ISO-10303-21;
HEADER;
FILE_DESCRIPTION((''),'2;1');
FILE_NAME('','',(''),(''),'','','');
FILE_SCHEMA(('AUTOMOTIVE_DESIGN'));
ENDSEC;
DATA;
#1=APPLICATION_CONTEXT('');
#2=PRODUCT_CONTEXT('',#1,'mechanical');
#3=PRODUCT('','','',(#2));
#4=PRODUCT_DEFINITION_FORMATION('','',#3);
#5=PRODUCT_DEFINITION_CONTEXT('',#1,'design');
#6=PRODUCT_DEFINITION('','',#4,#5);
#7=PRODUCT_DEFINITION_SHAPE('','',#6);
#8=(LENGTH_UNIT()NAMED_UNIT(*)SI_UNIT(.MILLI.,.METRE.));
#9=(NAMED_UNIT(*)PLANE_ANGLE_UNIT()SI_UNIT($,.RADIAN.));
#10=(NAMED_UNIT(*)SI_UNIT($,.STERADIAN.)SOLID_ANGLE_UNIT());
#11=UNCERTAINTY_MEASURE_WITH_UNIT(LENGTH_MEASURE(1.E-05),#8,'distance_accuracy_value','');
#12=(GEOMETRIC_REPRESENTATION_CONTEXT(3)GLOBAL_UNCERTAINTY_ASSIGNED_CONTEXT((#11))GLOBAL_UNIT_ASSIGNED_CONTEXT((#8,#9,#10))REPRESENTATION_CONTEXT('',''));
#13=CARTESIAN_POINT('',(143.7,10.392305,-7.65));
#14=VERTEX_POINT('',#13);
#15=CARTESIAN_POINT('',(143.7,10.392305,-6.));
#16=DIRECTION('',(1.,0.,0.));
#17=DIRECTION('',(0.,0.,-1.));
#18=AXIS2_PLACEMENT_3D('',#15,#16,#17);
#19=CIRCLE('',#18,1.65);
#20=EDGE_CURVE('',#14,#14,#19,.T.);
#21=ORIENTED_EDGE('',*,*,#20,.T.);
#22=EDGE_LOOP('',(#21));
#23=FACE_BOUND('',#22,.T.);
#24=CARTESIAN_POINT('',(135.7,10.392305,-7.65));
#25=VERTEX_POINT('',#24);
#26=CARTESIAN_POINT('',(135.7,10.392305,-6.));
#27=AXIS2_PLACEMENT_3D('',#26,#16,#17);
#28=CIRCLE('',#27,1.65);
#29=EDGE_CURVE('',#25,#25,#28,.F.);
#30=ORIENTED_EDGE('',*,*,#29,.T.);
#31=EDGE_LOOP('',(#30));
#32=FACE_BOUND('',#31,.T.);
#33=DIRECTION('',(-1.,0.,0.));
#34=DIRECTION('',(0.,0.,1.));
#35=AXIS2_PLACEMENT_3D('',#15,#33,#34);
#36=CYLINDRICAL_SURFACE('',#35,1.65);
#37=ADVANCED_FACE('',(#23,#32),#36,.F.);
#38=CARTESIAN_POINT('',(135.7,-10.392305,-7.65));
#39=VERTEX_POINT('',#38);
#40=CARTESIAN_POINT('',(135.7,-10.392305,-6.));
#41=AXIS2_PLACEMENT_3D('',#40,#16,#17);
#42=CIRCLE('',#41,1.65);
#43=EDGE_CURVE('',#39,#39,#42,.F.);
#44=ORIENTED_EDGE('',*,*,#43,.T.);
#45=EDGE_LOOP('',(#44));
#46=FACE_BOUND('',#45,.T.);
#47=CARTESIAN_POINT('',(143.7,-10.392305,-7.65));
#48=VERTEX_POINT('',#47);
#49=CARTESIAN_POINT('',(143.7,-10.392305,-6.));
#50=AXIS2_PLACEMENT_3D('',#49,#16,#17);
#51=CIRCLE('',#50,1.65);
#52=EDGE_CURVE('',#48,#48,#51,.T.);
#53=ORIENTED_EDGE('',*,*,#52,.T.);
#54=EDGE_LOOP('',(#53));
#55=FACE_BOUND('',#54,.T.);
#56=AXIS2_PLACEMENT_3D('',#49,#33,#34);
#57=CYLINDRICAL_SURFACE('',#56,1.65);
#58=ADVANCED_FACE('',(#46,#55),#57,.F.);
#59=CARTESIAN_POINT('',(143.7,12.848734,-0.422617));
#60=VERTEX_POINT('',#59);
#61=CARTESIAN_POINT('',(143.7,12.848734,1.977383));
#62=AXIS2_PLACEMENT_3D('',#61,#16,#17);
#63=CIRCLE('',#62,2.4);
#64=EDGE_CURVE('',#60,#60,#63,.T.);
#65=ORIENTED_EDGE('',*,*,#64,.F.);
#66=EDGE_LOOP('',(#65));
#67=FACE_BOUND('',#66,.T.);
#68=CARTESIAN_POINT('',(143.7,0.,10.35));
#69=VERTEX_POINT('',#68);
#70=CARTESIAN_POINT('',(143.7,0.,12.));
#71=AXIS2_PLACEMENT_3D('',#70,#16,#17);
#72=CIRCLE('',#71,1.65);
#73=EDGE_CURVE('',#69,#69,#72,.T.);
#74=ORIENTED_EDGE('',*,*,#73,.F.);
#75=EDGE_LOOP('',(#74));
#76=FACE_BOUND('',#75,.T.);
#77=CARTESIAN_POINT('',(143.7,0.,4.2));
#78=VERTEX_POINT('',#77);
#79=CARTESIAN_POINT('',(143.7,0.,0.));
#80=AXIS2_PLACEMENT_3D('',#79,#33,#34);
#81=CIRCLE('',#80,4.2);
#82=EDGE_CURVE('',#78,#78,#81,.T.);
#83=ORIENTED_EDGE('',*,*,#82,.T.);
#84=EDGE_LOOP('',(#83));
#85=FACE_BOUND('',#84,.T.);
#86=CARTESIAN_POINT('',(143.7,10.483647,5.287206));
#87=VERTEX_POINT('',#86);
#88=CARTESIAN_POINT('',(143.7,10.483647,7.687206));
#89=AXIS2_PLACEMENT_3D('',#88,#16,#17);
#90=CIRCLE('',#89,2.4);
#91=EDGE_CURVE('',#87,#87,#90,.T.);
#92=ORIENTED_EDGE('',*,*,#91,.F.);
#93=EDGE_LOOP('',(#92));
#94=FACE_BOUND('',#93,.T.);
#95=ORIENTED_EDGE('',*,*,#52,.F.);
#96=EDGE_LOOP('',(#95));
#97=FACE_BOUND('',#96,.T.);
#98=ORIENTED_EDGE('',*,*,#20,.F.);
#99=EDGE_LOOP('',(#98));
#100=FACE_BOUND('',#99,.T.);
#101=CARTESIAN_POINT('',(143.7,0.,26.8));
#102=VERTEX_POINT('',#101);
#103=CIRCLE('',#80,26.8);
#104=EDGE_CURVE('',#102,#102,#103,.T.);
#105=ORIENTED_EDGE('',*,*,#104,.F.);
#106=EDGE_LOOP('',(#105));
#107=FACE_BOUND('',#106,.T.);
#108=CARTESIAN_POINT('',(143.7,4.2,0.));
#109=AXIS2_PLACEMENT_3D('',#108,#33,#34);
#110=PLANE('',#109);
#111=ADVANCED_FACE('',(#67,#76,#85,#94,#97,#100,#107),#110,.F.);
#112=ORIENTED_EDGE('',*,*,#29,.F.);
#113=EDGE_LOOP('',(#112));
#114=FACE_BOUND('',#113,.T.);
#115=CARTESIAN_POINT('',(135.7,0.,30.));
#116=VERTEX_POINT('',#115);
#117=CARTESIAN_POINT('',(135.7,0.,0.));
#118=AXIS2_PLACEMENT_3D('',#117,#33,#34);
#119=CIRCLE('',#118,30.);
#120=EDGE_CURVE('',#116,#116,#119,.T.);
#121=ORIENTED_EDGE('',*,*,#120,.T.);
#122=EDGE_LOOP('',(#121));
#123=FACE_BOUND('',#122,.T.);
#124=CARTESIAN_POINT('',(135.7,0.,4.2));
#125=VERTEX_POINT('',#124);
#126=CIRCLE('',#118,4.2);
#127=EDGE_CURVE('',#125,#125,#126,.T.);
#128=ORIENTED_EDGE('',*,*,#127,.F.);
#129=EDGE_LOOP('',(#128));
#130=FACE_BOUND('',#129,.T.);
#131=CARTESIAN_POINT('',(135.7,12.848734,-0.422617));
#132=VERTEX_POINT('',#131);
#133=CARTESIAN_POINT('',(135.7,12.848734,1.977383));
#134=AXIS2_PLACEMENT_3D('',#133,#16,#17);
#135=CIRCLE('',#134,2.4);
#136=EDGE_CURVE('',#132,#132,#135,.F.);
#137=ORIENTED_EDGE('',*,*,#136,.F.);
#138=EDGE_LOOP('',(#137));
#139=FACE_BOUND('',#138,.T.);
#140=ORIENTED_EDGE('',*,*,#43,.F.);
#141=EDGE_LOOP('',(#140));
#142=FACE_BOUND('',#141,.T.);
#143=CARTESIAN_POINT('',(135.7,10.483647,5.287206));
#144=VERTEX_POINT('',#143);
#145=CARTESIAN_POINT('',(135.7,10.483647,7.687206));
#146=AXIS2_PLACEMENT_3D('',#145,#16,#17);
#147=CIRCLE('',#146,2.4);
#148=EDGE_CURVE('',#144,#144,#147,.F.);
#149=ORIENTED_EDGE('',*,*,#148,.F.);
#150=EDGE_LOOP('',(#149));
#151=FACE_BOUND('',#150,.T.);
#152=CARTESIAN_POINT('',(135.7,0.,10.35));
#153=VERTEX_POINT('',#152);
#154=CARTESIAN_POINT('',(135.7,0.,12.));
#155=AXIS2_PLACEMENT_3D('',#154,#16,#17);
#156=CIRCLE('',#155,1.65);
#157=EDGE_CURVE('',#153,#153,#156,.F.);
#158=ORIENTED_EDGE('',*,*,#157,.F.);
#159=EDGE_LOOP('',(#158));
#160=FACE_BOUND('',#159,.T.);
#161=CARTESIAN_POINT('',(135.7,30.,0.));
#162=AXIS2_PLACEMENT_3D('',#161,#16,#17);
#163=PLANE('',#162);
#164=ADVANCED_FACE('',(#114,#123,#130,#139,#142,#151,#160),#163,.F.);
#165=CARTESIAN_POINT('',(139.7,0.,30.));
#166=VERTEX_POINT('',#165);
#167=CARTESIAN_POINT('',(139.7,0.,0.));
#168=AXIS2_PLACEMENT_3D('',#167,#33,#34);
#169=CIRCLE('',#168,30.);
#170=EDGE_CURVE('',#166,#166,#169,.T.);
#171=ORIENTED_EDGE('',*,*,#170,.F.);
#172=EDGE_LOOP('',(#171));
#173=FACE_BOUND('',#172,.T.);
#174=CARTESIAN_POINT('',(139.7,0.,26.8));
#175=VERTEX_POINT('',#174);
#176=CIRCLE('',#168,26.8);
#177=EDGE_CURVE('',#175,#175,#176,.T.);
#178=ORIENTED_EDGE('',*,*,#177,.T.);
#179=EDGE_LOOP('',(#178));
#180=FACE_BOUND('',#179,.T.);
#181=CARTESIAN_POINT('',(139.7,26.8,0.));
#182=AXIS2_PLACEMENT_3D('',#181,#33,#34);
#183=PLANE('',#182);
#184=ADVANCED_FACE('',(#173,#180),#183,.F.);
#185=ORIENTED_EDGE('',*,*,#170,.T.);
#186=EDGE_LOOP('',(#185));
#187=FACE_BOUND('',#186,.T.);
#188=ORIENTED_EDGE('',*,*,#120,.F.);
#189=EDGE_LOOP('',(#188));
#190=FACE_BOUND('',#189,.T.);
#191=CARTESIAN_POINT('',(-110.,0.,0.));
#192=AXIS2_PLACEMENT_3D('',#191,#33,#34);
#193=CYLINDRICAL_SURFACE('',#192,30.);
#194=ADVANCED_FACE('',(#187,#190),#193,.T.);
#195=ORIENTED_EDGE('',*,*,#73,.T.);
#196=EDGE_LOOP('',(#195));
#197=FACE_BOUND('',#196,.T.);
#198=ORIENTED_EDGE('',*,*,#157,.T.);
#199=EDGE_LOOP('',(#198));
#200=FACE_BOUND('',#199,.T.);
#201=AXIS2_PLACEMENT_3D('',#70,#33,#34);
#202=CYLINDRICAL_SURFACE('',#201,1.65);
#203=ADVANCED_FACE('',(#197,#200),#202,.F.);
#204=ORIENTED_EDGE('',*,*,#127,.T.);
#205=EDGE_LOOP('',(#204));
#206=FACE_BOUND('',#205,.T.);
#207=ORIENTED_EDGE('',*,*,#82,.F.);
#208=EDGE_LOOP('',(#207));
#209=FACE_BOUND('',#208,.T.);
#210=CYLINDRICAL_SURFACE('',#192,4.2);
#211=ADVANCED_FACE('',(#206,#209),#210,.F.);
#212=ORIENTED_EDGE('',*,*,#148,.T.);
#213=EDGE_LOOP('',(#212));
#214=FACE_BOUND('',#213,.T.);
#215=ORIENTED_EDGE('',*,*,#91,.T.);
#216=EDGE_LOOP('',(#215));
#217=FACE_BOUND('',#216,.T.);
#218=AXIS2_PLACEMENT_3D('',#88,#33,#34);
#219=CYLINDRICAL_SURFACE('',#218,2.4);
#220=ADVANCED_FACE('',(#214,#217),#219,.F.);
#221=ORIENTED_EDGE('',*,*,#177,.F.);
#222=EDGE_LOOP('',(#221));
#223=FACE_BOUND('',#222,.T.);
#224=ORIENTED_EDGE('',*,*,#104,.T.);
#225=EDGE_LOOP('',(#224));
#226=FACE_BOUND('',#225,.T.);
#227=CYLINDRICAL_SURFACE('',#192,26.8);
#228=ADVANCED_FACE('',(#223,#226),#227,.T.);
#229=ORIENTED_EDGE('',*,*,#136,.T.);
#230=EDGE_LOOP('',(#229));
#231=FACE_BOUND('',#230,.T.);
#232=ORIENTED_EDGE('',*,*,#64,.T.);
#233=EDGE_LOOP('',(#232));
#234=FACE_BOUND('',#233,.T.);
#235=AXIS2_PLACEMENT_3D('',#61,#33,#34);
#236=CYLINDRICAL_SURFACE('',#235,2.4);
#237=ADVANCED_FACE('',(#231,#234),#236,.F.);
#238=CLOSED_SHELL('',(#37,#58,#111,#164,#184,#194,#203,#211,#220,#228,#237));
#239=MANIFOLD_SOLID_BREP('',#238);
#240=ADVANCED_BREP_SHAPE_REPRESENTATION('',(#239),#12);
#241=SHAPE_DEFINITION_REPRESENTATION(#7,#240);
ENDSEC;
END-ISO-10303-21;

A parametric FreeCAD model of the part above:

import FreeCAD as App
import Part
import Sketcher
Q = App.Units.Quantity


def add_polygon(sketch, points):
    """Adds a closed chain of lines whose ends are joined by coincident constraints."""
    first, n = sketch.GeometryCount, len(points)
    for a, b in zip(points, points[1:] + points[:1]):
        sketch.addGeometry(Part.LineSegment(App.Vector(*a, 0), App.Vector(*b, 0)), False)
    for i in range(n):
        sketch.addConstraint(Sketcher.Constraint("Coincident", first + i, 2, first + (i + 1) % n, 1))

doc = App.newDocument("Part")
body = doc.addObject("PartDesign::Body", "Body")

# Sketch on XY plane
sketch1 = doc.addObject("Sketcher::SketchObject", "Sketch")
body.addObject(sketch1)
sketch1.AttachmentSupport = (doc.XY_Plane, [""])
sketch1.MapMode = "FlatFace"
add_polygon(sketch1, [(135.7, 4.2), (143.7, 4.2), (143.7, 26.8), (139.7, 26.8), (139.7, 30), (135.7, 30)])  # lines 0-5
sketch1.addConstraint([
    Sketcher.Constraint("Horizontal", 0),
    Sketcher.Constraint("Vertical", 1),
    Sketcher.Constraint("Horizontal", 2),
    Sketcher.Constraint("Vertical", 3),
    Sketcher.Constraint("Horizontal", 4),
    Sketcher.Constraint("Vertical", 5),
    Sketcher.Constraint("Equal", 2, 4),
    Sketcher.Constraint("DistanceX", 0, 1, 0, 2, Q("8 mm")),
    Sketcher.Constraint("DistanceY", 1, 1, 1, 2, Q("22.6 mm")),
    Sketcher.Constraint("DistanceY", 3, 1, 3, 2, Q("3.2 mm")),
    Sketcher.Constraint("DistanceY", -1, 1, 3, 2, Q("30 mm")),
    Sketcher.Constraint("DistanceX", -1, 1, 0, 2, Q("143.7 mm")),
])
revolution = doc.addObject("PartDesign::Revolution", "Revolution")
body.addObject(revolution)
revolution.Profile = sketch1
revolution.ReferenceAxis = (sketch1, ["H_Axis"])
revolution.Angle = 360

# Sketch on YZ plane
sketch2 = doc.addObject("Sketcher::SketchObject", "Sketch001")
body.addObject(sketch2)
sketch2.AttachmentSupport = (doc.YZ_Plane, [""])
sketch2.MapMode = "FlatFace"
sketch2.addGeometry([
    Part.Circle(App.Vector(12.8, 2, 0), App.Vector(0, 0, 1), 2.4),  # 0
    Part.Circle(App.Vector(10.5, 7.7, 0), App.Vector(0, 0, 1), 2.4),  # 1
    Part.Circle(App.Vector(0, 12, 0), App.Vector(0, 0, 1), 1.6),  # 2
    Part.Circle(App.Vector(-10.4, -6, 0), App.Vector(0, 0, 1), 1.6),  # 3
    Part.Circle(App.Vector(10.4, -6, 0), App.Vector(0, 0, 1), 1.6),  # 4
], False)
sketch2.addConstraint([
    Sketcher.Constraint("Equal", 0, 1),
    Sketcher.Constraint("Equal", 2, 3),
    Sketcher.Constraint("Equal", 3, 4),
    Sketcher.Constraint("Symmetric", 3, 3, 4, 3, -2),
    Sketcher.Constraint("PointOnObject", 2, 3, -2),
    Sketcher.Constraint("Diameter", 0, Q("4.8 mm")),
    Sketcher.Constraint("Diameter", 2, Q("3.3 mm")),
    Sketcher.Constraint("DistanceY", -1, 1, 2, 3, Q("12 mm")),
    Sketcher.Constraint("DistanceY", 3, 3, -1, 1, Q("6 mm")),
    Sketcher.Constraint("DistanceX", 3, 3, 0, 3, Q("23.241039 mm")),
    Sketcher.Constraint("DistanceX", 4, 3, 0, 3, Q("2.456429 mm")),
    Sketcher.Constraint("DistanceY", -1, 1, 0, 3, Q("1.977383 mm")),
    Sketcher.Constraint("DistanceX", -1, 1, 1, 3, Q("10.483647 mm")),
    Sketcher.Constraint("DistanceY", -1, 1, 1, 3, Q("7.687206 mm")),
])
pocket1 = doc.addObject("PartDesign::Pocket", "Pocket")
body.addObject(pocket1)
pocket1.Profile = sketch2
pocket1.Type = "ThroughAll"
pocket1.Midplane = True

doc.recompute()
